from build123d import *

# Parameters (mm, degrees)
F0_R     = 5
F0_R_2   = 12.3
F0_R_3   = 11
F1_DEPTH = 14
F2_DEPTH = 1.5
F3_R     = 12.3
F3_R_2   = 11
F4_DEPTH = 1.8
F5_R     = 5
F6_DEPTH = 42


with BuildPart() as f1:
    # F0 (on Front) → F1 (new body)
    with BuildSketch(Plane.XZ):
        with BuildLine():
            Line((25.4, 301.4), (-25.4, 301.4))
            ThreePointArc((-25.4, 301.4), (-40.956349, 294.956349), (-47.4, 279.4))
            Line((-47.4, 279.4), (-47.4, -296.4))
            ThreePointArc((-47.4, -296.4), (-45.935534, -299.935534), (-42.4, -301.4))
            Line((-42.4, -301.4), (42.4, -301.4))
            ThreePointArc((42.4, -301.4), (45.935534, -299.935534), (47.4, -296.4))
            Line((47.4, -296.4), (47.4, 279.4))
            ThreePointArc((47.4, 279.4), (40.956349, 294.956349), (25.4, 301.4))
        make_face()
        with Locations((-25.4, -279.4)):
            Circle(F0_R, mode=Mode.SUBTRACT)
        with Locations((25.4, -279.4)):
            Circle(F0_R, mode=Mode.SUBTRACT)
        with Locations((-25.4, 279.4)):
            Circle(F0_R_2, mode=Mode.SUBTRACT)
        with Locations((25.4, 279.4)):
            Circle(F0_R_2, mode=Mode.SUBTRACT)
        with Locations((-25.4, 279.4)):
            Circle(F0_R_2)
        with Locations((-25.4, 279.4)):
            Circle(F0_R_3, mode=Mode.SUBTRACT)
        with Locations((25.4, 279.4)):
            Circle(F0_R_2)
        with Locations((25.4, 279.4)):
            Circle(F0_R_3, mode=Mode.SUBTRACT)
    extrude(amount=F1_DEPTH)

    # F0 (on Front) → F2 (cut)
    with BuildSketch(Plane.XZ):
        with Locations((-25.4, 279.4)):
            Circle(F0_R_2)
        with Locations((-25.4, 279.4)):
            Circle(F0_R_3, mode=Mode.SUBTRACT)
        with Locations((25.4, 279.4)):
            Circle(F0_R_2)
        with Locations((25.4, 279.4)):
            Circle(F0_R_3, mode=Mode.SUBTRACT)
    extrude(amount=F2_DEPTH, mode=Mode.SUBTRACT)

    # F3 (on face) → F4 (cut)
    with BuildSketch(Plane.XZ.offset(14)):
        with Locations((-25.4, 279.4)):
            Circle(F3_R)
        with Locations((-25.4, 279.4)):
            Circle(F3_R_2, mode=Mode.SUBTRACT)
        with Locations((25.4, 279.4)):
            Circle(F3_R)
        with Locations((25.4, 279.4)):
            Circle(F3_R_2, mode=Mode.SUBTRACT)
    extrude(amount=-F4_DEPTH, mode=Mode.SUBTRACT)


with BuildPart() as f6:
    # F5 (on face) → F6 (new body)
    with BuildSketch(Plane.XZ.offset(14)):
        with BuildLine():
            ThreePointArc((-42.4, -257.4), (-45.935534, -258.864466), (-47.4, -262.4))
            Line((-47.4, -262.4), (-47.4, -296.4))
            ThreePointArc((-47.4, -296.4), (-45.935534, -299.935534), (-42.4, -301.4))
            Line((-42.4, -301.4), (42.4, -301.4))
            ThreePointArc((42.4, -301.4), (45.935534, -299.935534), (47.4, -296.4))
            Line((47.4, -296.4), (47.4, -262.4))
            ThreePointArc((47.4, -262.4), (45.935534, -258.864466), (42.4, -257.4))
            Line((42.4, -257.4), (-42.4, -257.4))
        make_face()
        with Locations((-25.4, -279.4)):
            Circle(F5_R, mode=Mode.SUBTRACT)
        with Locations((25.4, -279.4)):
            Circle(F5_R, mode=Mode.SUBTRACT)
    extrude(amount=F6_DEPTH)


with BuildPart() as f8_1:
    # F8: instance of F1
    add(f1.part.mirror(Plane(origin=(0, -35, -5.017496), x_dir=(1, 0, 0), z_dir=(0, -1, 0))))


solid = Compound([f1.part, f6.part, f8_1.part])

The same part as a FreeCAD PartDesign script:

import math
import FreeCAD as App
import Part
import Sketcher

V = App.Vector
Q = App.Units.Quantity

doc = App.newDocument("Part")
params = doc.addObject("Spreadsheet::Sheet", "Params")
for row, (alias, value) in enumerate([
    ("sketch1_diameter", "10 mm"),
    ("sketch1_diameter2", "22 mm"),
    ("sketch1_radius", "22.000001 mm"),
    ("sketch1_width", "50.8 mm"),
    ("sketch1_height", "575.8 mm"),
    ("pad1_length", "14 mm"),
    ("sketch2_diameter", "22 mm"),
    ("sketch2_diameter2", "24.6 mm"),
    ("pocket1_length", "1.5 mm"),
    ("sketch3_diameter", "22 mm"),
    ("sketch3_diameter2", "24.6 mm"),
    ("pocket2_length", "1.8 mm"),
    ("sketch4_diameter", "10 mm"),
    ("sketch4_height", "34 mm"),
    ("sketch4_width", "84.8 mm"),
    ("pad2_length", "42 mm"),
], start=1):
    params.set(f"A{row}", alias)
    params.set(f"B{row}", "=" + value)
    params.setAlias(f"B{row}", alias)

body = doc.addObject("PartDesign::Body", "Body")

# Sketch on XZ plane
sketch1 = body.newObject("Sketcher::SketchObject", "Sketch")
sketch1.AttachmentSupport = (doc.getObject("XZ_Plane"), [""])
sketch1.MapMode = "FlatFace"
sketch1.addGeometry([
    Part.LineSegment(V(25.4, 301.4, 0), V(-25.4, 301.4, 0)),  # 0
    Part.ArcOfCircle(Part.Circle(V(-25.4, 279.4, 0), V(0, 0, 1), 22), math.radians(90), math.radians(180)),  # 1
    Part.LineSegment(V(-47.4, 279.4, 0), V(-47.4, -296.4, 0)),  # 2
    Part.ArcOfCircle(Part.Circle(V(-42.4, -296.4, 0), V(0, 0, 1), 5), math.radians(180), math.radians(270)),  # 3
    Part.LineSegment(V(-42.4, -301.4, 0), V(42.4, -301.4, 0)),  # 4
    Part.ArcOfCircle(Part.Circle(V(42.4, -296.4, 0), V(0, 0, 1), 5), math.radians(-90), math.radians(0)),  # 5
    Part.LineSegment(V(47.4, -296.4, 0), V(47.4, 279.4, 0)),  # 6
    Part.ArcOfCircle(Part.Circle(V(25.4, 279.4, 0), V(0, 0, 1), 22), math.radians(0), math.radians(90)),  # 7
    Part.Circle(V(-25.4, -279.4, 0), V(0, 0, 1), 5),  # 8
    Part.Circle(V(25.4, -279.4, 0), V(0, 0, 1), 5),  # 9
    Part.Circle(V(-25.4, 279.4, 0), V(0, 0, 1), 11),  # 10
    Part.Circle(V(25.4, 279.4, 0), V(0, 0, 1), 11),  # 11
], False)
sketch1.addConstraint([
    Sketcher.Constraint("Tangent", 0, 2, 1, 1),
    Sketcher.Constraint("Tangent", 1, 2, 2, 1),
    Sketcher.Constraint("Tangent", 2, 2, 3, 1),
    Sketcher.Constraint("Tangent", 3, 2, 4, 1),
    Sketcher.Constraint("Tangent", 4, 2, 5, 1),
    Sketcher.Constraint("Tangent", 5, 2, 6, 1),
    Sketcher.Constraint("Tangent", 6, 2, 7, 1),
    Sketcher.Constraint("Tangent", 7, 2, 0, 1),
    Sketcher.Constraint("Horizontal", 0),
    Sketcher.Constraint("Vertical", 2),
    Sketcher.Constraint("Horizontal", 4),
    Sketcher.Constraint("Vertical", 6),
    Sketcher.Constraint("Coincident", 10, 3, 1, 3),
    Sketcher.Constraint("Coincident", 11, 3, 7, 3),
    Sketcher.Constraint("Equal", 3, 5),
    Sketcher.Constraint("Equal", 1, 7),
    Sketcher.Constraint("Equal", 5, 8),
    Sketcher.Constraint("Equal", 8, 9),
    Sketcher.Constraint("Equal", 10, 11),
    Sketcher.Constraint("Symmetric", 7, 3, 8, 3, -1, 1),
    Sketcher.Constraint("Symmetric", 1, 3, 9, 3, -1, 1),
    Sketcher.Constraint("Vertical", 1, 3, 8, 3),
    Sketcher.Constraint("Diameter", 8, Q("10 mm")),
    Sketcher.Constraint("Diameter", 10, Q("22 mm")),
    Sketcher.Constraint("Radius", 1, Q("22.000001 mm")),
    Sketcher.Constraint("DistanceX", 0, 2, 0, 1, Q("50.8 mm")),
    Sketcher.Constraint("DistanceY", 2, 2, 2, 1, Q("575.8 mm")),
    Sketcher.Constraint("DistanceY", 3, 3, 8, 3, Q("17 mm")),
])
sketch1.setExpression("Constraints[22]", "Params.sketch1_diameter")
sketch1.setExpression("Constraints[23]", "Params.sketch1_diameter2")
sketch1.setExpression("Constraints[24]", "Params.sketch1_radius")
sketch1.setExpression("Constraints[25]", "Params.sketch1_width")
sketch1.setExpression("Constraints[26]", "Params.sketch1_height")
pad1 = body.newObject("PartDesign::Pad", "Pad")
pad1.Profile = sketch1
pad1.setExpression("Length", "Params.pad1_length")

# Sketch on XZ plane
sketch2 = body.newObject("Sketcher::SketchObject", "Sketch001")
sketch2.AttachmentSupport = (doc.getObject("XZ_Plane"), [""])
sketch2.MapMode = "FlatFace"
sketch2.addGeometry([
    Part.Circle(V(-25, 279, 0), V(0, 0, 1), 12),
    Part.Circle(V(-25, 279, 0), V(0, 0, 1), 11),
    Part.Circle(V(25, 279, 0), V(0, 0, 1), 12),
    Part.Circle(V(25, 279, 0), V(0, 0, 1), 11),
], False)
sketch2.addConstraint([
    Sketcher.Constraint("Coincident", 1, 3, 0, 3),
    Sketcher.Constraint("Coincident", 3, 3, 2, 3),
    Sketcher.Constraint("Equal", 0, 2),
    Sketcher.Constraint("Equal", 1, 3),
    Sketcher.Constraint("Symmetric", 0, 3, 2, 3, -2),
    Sketcher.Constraint("Diameter", 1, Q("22 mm")),
    Sketcher.Constraint("Diameter", 0, Q("24.6 mm")),
    Sketcher.Constraint("DistanceX", 0, 3, -1, 1, Q("25.4 mm")),
    Sketcher.Constraint("DistanceY", -1, 1, 0, 3, Q("279.4 mm")),
])
sketch2.setExpression("Constraints[5]", "Params.sketch2_diameter")
sketch2.setExpression("Constraints[6]", "Params.sketch2_diameter2")
pocket1 = body.newObject("PartDesign::Pocket", "Pocket")
pocket1.Profile = sketch2
pocket1.setExpression("Length", "Params.pocket1_length")
pocket1.Reversed = True

# Sketch on XZ plane
sketch3 = body.newObject("Sketcher::SketchObject", "Sketch002")
sketch3.AttachmentSupport = (doc.getObject("XZ_Plane"), [""])
sketch3.MapMode = "FlatFace"
sketch3.AttachmentOffset = App.Placement(V(0, 0, 14), App.Rotation())
sketch3.addGeometry([
    Part.Circle(V(-25, 279, 0), V(0, 0, 1), 12),
    Part.Circle(V(-25, 279, 0), V(0, 0, 1), 11),
    Part.Circle(V(25, 279, 0), V(0, 0, 1), 12),
    Part.Circle(V(25, 279, 0), V(0, 0, 1), 11),
], False)
sketch3.addConstraint([
    Sketcher.Constraint("Coincident", 1, 3, 0, 3),
    Sketcher.Constraint("Coincident", 3, 3, 2, 3),
    Sketcher.Constraint("Equal", 0, 2),
    Sketcher.Constraint("Equal", 1, 3),
    Sketcher.Constraint("Symmetric", 0, 3, 2, 3, -2),
    Sketcher.Constraint("Diameter", 1, Q("22 mm")),
    Sketcher.Constraint("Diameter", 0, Q("24.6 mm")),
    Sketcher.Constraint("DistanceX", 0, 3, -1, 1, Q("25.4 mm")),
    Sketcher.Constraint("DistanceY", -1, 1, 0, 3, Q("279.4 mm")),
])
sketch3.setExpression("Constraints[5]", "Params.sketch3_diameter")
sketch3.setExpression("Constraints[6]", "Params.sketch3_diameter2")
pocket2 = body.newObject("PartDesign::Pocket", "Pocket001")
pocket2.Profile = sketch3
pocket2.setExpression("Length", "Params.pocket2_length")
body2 = doc.addObject("PartDesign::Body", "Body001")

# Sketch on XZ plane
sketch4 = body2.newObject("Sketcher::SketchObject", "Sketch003")
sketch4.AttachmentSupport = (doc.getObject("XZ_Plane001"), [""])
sketch4.MapMode = "FlatFace"
sketch4.AttachmentOffset = App.Placement(V(0, 0, 14), App.Rotation())
sketch4.addGeometry([
    Part.ArcOfCircle(Part.Circle(V(-42.4, -262.4, 0), V(0, 0, 1), 5), math.radians(90), math.radians(180)),  # 0
    Part.LineSegment(V(-47.4, -262.4, 0), V(-47.4, -296.4, 0)),  # 1
    Part.ArcOfCircle(Part.Circle(V(-42.4, -296.4, 0), V(0, 0, 1), 5), math.radians(180), math.radians(270)),  # 2
    Part.LineSegment(V(-42.4, -301.4, 0), V(42.4, -301.4, 0)),  # 3
    Part.ArcOfCircle(Part.Circle(V(42.4, -296.4, 0), V(0, 0, 1), 5), math.radians(-90), math.radians(0)),  # 4
    Part.LineSegment(V(47.4, -296.4, 0), V(47.4, -262.4, 0)),  # 5
    Part.ArcOfCircle(Part.Circle(V(42.4, -262.4, 0), V(0, 0, 1), 5), math.radians(0), math.radians(90)),  # 6
    Part.LineSegment(V(42.4, -257.4, 0), V(-42.4, -257.4, 0)),  # 7
    Part.Circle(V(-25.4, -279.4, 0), V(0, 0, 1), 5),  # 8
    Part.Circle(V(25.4, -279.4, 0), V(0, 0, 1), 5),  # 9
], False)
sketch4.addConstraint([
    Sketcher.Constraint("Tangent", 0, 2, 1, 1),
    Sketcher.Constraint("Tangent", 1, 2, 2, 1),
    Sketcher.Constraint("Tangent", 2, 2, 3, 1),
    Sketcher.Constraint("Tangent", 3, 2, 4, 1),
    Sketcher.Constraint("Tangent", 4, 2, 5, 1),
    Sketcher.Constraint("Tangent", 5, 2, 6, 1),
    Sketcher.Constraint("Tangent", 6, 2, 7, 1),
    Sketcher.Constraint("Tangent", 7, 2, 0, 1),
    Sketcher.Constraint("Vertical", 1),
    Sketcher.Constraint("Horizontal", 3),
    Sketcher.Constraint("Vertical", 5),
    Sketcher.Constraint("Horizontal", 7),
    Sketcher.Constraint("Equal", 0, 2),
    Sketcher.Constraint("Equal", 2, 4),
    Sketcher.Constraint("Equal", 4, 6),
    Sketcher.Constraint("Equal", 6, 8),
    Sketcher.Constraint("Equal", 8, 9),
    Sketcher.Constraint("Symmetric", 8, 3, 9, 3, -2),
    Sketcher.Constraint("Diameter", 8, Q("10 mm")),
    Sketcher.Constraint("DistanceY", 1, 2, 1, 1, Q("34 mm")),
    Sketcher.Constraint("DistanceX", 3, 1, 3, 2, Q("84.8 mm")),
    Sketcher.Constraint("DistanceX", 0, 3, 8, 3, Q("17 mm")),
    Sketcher.Constraint("DistanceY", 8, 3, 0, 3, Q("17 mm")),
    Sketcher.Constraint("DistanceX", 9, 3, 6, 3, Q("17 mm")),
    Sketcher.Constraint("DistanceY", 0, 3, -1, 1, Q("262.4 mm")),
])
sketch4.setExpression("Constraints[18]", "Params.sketch4_diameter")
sketch4.setExpression("Constraints[19]", "Params.sketch4_height")
sketch4.setExpression("Constraints[20]", "Params.sketch4_width")
pad2 = body2.newObject("PartDesign::Pad", "Pad001")
pad2.Profile = sketch4
pad2.setExpression("Length", "Params.pad2_length")
body3 = doc.addObject("PartDesign::Body", "Body002")
doc.recompute()

mirroring = doc.addObject("Part::Mirroring", "Mirroring")
mirroring.Source = body
mirroring.Base = V(0, -35, -5.017496)
mirroring.Normal = V(0, -1, 0)
body3.BaseFeature = mirroring
doc.recompute()
mirroring.Visibility = False

doc.recompute()
